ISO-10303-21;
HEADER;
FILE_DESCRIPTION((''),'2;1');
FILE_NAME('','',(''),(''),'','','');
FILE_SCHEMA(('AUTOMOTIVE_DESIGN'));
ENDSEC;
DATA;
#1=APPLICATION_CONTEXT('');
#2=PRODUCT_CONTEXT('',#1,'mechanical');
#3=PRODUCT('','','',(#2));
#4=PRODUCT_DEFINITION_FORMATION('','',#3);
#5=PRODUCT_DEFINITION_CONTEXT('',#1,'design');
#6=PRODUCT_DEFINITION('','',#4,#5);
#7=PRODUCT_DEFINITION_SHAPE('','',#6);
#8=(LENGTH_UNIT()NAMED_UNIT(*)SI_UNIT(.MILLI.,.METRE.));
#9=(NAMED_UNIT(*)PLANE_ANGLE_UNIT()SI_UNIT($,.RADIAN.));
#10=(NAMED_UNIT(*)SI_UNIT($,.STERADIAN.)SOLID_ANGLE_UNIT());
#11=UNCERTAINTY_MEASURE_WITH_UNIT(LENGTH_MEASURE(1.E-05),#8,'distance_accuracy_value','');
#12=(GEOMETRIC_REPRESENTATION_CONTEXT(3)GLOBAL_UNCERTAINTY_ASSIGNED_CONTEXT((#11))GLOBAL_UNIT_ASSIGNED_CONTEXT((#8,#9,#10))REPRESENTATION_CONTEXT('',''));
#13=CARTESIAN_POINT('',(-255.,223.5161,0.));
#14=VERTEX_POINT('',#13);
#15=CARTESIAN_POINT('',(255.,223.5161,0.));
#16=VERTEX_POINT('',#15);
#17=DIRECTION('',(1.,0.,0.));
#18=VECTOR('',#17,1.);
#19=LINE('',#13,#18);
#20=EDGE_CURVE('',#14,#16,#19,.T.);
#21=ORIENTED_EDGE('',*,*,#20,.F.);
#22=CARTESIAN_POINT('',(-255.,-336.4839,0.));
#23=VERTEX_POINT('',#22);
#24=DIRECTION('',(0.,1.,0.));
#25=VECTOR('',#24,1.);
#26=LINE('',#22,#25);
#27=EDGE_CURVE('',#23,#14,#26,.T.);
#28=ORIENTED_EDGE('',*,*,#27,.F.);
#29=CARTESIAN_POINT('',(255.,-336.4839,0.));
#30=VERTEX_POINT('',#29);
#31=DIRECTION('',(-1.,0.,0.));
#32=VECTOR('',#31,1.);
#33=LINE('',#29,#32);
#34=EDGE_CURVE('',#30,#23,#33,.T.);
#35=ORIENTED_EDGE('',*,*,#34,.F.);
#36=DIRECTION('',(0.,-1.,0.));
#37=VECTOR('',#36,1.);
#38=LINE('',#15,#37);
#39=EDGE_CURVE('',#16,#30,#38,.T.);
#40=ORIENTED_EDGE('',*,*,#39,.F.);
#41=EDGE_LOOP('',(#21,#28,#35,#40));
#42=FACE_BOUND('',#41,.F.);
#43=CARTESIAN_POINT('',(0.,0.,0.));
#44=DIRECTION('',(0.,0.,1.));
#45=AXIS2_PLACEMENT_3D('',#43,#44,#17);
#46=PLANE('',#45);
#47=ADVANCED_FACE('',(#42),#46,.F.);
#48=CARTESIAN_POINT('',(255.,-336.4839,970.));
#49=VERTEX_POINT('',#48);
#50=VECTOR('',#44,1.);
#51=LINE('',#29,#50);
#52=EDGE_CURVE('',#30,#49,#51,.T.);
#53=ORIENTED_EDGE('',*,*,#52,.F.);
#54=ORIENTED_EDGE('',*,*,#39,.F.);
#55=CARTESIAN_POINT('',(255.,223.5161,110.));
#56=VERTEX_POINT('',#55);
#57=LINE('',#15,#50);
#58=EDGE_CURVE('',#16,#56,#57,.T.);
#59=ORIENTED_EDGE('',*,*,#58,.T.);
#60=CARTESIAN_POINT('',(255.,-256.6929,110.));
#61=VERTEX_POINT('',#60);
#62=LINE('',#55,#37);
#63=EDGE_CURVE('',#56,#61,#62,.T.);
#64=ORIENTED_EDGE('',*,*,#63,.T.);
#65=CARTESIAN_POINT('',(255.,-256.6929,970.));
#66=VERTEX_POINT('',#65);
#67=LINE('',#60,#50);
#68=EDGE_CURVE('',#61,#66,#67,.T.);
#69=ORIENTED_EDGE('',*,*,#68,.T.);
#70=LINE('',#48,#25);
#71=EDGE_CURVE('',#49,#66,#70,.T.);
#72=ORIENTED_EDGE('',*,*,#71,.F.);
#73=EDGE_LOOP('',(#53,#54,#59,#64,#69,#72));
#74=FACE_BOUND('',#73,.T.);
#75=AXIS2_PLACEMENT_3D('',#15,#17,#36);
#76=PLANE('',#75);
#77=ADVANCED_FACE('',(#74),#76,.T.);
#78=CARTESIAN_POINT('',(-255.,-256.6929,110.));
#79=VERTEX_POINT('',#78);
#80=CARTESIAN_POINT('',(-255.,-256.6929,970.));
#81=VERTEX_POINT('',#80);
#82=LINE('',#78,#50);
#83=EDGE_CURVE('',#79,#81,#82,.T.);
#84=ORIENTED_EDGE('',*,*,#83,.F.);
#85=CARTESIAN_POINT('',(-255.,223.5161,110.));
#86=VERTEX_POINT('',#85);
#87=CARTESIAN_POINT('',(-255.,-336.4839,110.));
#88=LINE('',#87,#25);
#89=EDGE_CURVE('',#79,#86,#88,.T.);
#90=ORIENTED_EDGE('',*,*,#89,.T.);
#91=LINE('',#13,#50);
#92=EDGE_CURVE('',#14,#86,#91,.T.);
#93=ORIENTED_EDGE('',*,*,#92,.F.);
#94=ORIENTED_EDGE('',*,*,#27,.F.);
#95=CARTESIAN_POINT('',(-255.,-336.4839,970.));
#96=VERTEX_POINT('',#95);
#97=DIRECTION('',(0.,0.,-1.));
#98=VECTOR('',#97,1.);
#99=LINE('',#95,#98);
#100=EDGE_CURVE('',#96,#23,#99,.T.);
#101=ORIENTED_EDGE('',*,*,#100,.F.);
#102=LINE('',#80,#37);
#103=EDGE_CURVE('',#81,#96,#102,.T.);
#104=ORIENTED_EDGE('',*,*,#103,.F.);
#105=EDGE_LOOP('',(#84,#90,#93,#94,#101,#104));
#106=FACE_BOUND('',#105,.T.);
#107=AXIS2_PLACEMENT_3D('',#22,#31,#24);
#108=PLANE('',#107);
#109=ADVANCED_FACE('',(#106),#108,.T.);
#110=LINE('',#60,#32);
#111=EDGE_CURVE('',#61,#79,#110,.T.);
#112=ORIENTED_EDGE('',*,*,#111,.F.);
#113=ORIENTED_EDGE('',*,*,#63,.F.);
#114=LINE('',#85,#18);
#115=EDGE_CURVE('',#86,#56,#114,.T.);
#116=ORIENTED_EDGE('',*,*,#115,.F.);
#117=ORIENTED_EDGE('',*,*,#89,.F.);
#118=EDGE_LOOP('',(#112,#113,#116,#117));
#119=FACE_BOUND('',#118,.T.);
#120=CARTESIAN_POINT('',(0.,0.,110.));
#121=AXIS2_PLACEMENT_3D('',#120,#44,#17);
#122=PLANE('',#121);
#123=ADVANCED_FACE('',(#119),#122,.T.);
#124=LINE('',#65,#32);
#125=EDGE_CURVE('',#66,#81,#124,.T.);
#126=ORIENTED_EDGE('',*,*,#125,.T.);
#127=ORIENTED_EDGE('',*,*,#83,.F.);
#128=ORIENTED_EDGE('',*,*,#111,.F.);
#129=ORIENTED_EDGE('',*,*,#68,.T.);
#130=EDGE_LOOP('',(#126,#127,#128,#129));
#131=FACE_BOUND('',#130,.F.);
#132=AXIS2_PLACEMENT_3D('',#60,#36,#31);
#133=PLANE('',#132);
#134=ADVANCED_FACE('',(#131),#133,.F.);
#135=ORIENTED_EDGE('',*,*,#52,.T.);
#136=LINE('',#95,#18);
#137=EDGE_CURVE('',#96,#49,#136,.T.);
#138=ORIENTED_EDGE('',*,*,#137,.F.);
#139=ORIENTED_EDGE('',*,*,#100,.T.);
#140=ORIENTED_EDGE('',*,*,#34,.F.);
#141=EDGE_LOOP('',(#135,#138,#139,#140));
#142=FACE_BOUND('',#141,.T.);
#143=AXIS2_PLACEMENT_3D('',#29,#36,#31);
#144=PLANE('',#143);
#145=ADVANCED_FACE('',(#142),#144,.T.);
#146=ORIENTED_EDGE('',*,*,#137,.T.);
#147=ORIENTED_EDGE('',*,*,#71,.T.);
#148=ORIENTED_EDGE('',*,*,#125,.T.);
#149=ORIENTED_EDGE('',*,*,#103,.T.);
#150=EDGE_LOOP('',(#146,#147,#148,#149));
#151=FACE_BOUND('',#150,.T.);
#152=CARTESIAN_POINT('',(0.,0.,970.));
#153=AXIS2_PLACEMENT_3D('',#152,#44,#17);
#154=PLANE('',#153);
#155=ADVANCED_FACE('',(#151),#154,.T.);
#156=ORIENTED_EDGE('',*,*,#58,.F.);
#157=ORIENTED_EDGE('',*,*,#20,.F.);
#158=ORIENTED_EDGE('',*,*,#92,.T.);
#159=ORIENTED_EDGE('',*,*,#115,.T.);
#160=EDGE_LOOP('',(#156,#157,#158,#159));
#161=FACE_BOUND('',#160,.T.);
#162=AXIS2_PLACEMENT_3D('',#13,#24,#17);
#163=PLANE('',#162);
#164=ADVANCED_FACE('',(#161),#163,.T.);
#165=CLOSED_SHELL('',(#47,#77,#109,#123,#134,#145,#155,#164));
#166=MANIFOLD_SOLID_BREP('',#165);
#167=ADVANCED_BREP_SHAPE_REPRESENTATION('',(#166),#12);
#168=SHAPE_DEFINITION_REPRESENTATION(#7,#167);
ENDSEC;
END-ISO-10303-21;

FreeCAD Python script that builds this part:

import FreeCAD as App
import Part
import Sketcher

doc = App.newDocument("Part")
body = doc.addObject("PartDesign::Body", "Body")

# Sketch on XY plane
sketch1 = doc.addObject("Sketcher::SketchObject", "Sketch")
body.addObject(sketch1)
sketch1.AttachmentSupport = (doc.XY_Plane, [""])
sketch1.MapMode = "FlatFace"
sketch1.addGeometry(Part.LineSegment(App.Vector(-255, -336, 0), App.Vector(255, -336, 0)), False)
sketch1.addGeometry(Part.LineSegment(App.Vector(255, -336, 0), App.Vector(255, 224, 0)), False)
sketch1.addGeometry(Part.LineSegment(App.Vector(255, 224, 0), App.Vector(-255, 224, 0)), False)
sketch1.addGeometry(Part.LineSegment(App.Vector(-255, 224, 0), App.Vector(-255, -336, 0)), False)
sketch1.addConstraint(Sketcher.Constraint("Coincident", 0, 2, 1, 1))
sketch1.addConstraint(Sketcher.Constraint("Coincident", 1, 2, 2, 1))
sketch1.addConstraint(Sketcher.Constraint("Coincident", 2, 2, 3, 1))
sketch1.addConstraint(Sketcher.Constraint("Coincident", 3, 2, 0, 1))
sketch1.addConstraint(Sketcher.Constraint("Horizontal", 0))
sketch1.addConstraint(Sketcher.Constraint("Vertical", 1))
sketch1.addConstraint(Sketcher.Constraint("Horizontal", 2))
sketch1.addConstraint(Sketcher.Constraint("Vertical", 3))
sketch1.addConstraint(Sketcher.Constraint("DistanceX", 0, 1, 0, 2, 510.0))
sketch1.addConstraint(Sketcher.Constraint("DistanceY", 1, 1, 1, 2, 560.0))
sketch1.addConstraint(Sketcher.Constraint("DistanceX", -1, 1, 0, 2, 255.0))
sketch1.addConstraint(Sketcher.Constraint("DistanceY", 0, 2, -1, 1, 336.484))
pad1 = doc.addObject("PartDesign::Pad", "Pad")
body.addObject(pad1)
pad1.Profile = sketch1
pad1.Length = 110

# Sketch on XY plane
sketch2 = doc.addObject("Sketcher::SketchObject", "Sketch001")
body.addObject(sketch2)
sketch2.AttachmentSupport = (doc.XY_Plane, [""])
sketch2.MapMode = "FlatFace"
sketch2.AttachmentOffset = App.Placement(App.Vector(0, 0, 110), App.Rotation())
sketch2.addGeometry(Part.LineSegment(App.Vector(-255, -257, 0), App.Vector(-255, -336, 0)), False)
sketch2.addGeometry(Part.LineSegment(App.Vector(-255, -336, 0), App.Vector(255, -336, 0)), False)
sketch2.addGeometry(Part.LineSegment(App.Vector(255, -336, 0), App.Vector(255, -257, 0)), False)
sketch2.addGeometry(Part.LineSegment(App.Vector(255, -257, 0), App.Vector(-255, -257, 0)), False)
sketch2.addConstraint(Sketcher.Constraint("Coincident", 0, 2, 1, 1))
sketch2.addConstraint(Sketcher.Constraint("Coincident", 1, 2, 2, 1))
sketch2.addConstraint(Sketcher.Constraint("Coincident", 2, 2, 3, 1))
sketch2.addConstraint(Sketcher.Constraint("Coincident", 3, 2, 0, 1))
sketch2.addConstraint(Sketcher.Constraint("Vertical", 0))
sketch2.addConstraint(Sketcher.Constraint("Horizontal", 1))
sketch2.addConstraint(Sketcher.Constraint("Vertical", 2))
sketch2.addConstraint(Sketcher.Constraint("Horizontal", 3))
sketch2.addConstraint(Sketcher.Constraint("DistanceX", 1, 1, 1, 2, 510.0))
sketch2.addConstraint(Sketcher.Constraint("DistanceX", 0, 2, -1, 1, 255.0))
sketch2.addConstraint(Sketcher.Constraint("DistanceY", 0, 2, 0, 1, 79.791))
sketch2.addConstraint(Sketcher.Constraint("DistanceY", 0, 2, -1, 1, 336.484))
pad2 = doc.addObject("PartDesign::Pad", "Pad001")
body.addObject(pad2)
pad2.Profile = sketch2
pad2.Length = 860

doc.recompute()
